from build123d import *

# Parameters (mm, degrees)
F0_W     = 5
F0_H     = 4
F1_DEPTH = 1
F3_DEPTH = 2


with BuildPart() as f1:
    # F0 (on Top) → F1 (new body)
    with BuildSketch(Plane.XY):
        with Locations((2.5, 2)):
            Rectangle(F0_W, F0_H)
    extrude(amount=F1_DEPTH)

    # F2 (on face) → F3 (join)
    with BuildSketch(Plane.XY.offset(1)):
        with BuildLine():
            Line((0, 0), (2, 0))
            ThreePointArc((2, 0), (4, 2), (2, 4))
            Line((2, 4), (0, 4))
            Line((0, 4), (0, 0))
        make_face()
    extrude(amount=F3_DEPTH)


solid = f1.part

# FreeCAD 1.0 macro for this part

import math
import FreeCAD as App
import Part
import Sketcher

V = App.Vector

doc = App.newDocument("Part")
body = doc.addObject("PartDesign::Body", "Body")

# Sketch on XY plane
sketch1 = body.newObject("Sketcher::SketchObject", "Sketch")
sketch1.AttachmentSupport = (doc.getObject("XY_Plane"), [""])
sketch1.MapMode = "FlatFace"
sketch1.addGeometry(Part.LineSegment(V(0, 4, 0), V(0, 0, 0)), False)
sketch1.addGeometry(Part.LineSegment(V(0, 0, 0), V(5, 0, 0)), False)
sketch1.addGeometry(Part.LineSegment(V(5, 0, 0), V(5, 4, 0)), False)
sketch1.addGeometry(Part.LineSegment(V(5, 4, 0), V(0, 4, 0)), False)
sketch1.addConstraint(Sketcher.Constraint("Coincident", 0, 2, 1, 1))
sketch1.addConstraint(Sketcher.Constraint("Coincident", 1, 2, 2, 1))
sketch1.addConstraint(Sketcher.Constraint("Coincident", 2, 2, 3, 1))
sketch1.addConstraint(Sketcher.Constraint("Coincident", 3, 2, 0, 1))
sketch1.addConstraint(Sketcher.Constraint("Vertical", 0))
sketch1.addConstraint(Sketcher.Constraint("Horizontal", 1))
sketch1.addConstraint(Sketcher.Constraint("Vertical", 2))
sketch1.addConstraint(Sketcher.Constraint("Horizontal", 3))
sketch1.addConstraint(Sketcher.Constraint("Coincident", 0, 2, -1, 1))
sketch1.addConstraint(Sketcher.Constraint("DistanceX", 1, 1, 1, 2, 5.0))
sketch1.addConstraint(Sketcher.Constraint("DistanceY", 0, 2, 0, 1, 4.0))
pad1 = body.newObject("PartDesign::Pad", "Pad")
pad1.Profile = sketch1
pad1.Length = 1

# Sketch on XY plane
sketch2 = body.newObject("Sketcher::SketchObject", "Sketch001")
sketch2.AttachmentSupport = (doc.getObject("XY_Plane"), [""])
sketch2.MapMode = "FlatFace"
sketch2.AttachmentOffset = App.Placement(V(0, 0, 1), App.Rotation())
sketch2.addGeometry(Part.LineSegment(V(0, 0, 0), V(2, 0, 0)), False)
sketch2.addGeometry(Part.ArcOfCircle(Part.Circle(V(2, 2, 0), V(0, 0, 1), 2), math.radians(-90), math.radians(90)), False)
sketch2.addGeometry(Part.LineSegment(V(2, 4, 0), V(0, 4, 0)), False)
sketch2.addGeometry(Part.LineSegment(V(0, 4, 0), V(0, 0, 0)), False)
sketch2.addConstraint(Sketcher.Constraint("Tangent", 0, 2, 1, 1))
sketch2.addConstraint(Sketcher.Constraint("Tangent", 1, 2, 2, 1))
sketch2.addConstraint(Sketcher.Constraint("Coincident", 2, 2, 3, 1))
sketch2.addConstraint(Sketcher.Constraint("Coincident", 3, 2, 0, 1))
sketch2.addConstraint(Sketcher.Constraint("Horizontal", 0))
sketch2.addConstraint(Sketcher.Constraint("Horizontal", 2))
sketch2.addConstraint(Sketcher.Constraint("Vertical", 3))
sketch2.addConstraint(Sketcher.Constraint("Coincident", 3, 2, -1, 1))
sketch2.addConstraint(Sketcher.Constraint("Radius", 1, 2.0))
sketch2.addConstraint(Sketcher.Constraint("DistanceX", 0, 1, 0, 2, 2.0))
pad2 = body.newObject("PartDesign::Pad", "Pad001")
pad2.Profile = sketch2
pad2.Length = 2

doc.recompute()
